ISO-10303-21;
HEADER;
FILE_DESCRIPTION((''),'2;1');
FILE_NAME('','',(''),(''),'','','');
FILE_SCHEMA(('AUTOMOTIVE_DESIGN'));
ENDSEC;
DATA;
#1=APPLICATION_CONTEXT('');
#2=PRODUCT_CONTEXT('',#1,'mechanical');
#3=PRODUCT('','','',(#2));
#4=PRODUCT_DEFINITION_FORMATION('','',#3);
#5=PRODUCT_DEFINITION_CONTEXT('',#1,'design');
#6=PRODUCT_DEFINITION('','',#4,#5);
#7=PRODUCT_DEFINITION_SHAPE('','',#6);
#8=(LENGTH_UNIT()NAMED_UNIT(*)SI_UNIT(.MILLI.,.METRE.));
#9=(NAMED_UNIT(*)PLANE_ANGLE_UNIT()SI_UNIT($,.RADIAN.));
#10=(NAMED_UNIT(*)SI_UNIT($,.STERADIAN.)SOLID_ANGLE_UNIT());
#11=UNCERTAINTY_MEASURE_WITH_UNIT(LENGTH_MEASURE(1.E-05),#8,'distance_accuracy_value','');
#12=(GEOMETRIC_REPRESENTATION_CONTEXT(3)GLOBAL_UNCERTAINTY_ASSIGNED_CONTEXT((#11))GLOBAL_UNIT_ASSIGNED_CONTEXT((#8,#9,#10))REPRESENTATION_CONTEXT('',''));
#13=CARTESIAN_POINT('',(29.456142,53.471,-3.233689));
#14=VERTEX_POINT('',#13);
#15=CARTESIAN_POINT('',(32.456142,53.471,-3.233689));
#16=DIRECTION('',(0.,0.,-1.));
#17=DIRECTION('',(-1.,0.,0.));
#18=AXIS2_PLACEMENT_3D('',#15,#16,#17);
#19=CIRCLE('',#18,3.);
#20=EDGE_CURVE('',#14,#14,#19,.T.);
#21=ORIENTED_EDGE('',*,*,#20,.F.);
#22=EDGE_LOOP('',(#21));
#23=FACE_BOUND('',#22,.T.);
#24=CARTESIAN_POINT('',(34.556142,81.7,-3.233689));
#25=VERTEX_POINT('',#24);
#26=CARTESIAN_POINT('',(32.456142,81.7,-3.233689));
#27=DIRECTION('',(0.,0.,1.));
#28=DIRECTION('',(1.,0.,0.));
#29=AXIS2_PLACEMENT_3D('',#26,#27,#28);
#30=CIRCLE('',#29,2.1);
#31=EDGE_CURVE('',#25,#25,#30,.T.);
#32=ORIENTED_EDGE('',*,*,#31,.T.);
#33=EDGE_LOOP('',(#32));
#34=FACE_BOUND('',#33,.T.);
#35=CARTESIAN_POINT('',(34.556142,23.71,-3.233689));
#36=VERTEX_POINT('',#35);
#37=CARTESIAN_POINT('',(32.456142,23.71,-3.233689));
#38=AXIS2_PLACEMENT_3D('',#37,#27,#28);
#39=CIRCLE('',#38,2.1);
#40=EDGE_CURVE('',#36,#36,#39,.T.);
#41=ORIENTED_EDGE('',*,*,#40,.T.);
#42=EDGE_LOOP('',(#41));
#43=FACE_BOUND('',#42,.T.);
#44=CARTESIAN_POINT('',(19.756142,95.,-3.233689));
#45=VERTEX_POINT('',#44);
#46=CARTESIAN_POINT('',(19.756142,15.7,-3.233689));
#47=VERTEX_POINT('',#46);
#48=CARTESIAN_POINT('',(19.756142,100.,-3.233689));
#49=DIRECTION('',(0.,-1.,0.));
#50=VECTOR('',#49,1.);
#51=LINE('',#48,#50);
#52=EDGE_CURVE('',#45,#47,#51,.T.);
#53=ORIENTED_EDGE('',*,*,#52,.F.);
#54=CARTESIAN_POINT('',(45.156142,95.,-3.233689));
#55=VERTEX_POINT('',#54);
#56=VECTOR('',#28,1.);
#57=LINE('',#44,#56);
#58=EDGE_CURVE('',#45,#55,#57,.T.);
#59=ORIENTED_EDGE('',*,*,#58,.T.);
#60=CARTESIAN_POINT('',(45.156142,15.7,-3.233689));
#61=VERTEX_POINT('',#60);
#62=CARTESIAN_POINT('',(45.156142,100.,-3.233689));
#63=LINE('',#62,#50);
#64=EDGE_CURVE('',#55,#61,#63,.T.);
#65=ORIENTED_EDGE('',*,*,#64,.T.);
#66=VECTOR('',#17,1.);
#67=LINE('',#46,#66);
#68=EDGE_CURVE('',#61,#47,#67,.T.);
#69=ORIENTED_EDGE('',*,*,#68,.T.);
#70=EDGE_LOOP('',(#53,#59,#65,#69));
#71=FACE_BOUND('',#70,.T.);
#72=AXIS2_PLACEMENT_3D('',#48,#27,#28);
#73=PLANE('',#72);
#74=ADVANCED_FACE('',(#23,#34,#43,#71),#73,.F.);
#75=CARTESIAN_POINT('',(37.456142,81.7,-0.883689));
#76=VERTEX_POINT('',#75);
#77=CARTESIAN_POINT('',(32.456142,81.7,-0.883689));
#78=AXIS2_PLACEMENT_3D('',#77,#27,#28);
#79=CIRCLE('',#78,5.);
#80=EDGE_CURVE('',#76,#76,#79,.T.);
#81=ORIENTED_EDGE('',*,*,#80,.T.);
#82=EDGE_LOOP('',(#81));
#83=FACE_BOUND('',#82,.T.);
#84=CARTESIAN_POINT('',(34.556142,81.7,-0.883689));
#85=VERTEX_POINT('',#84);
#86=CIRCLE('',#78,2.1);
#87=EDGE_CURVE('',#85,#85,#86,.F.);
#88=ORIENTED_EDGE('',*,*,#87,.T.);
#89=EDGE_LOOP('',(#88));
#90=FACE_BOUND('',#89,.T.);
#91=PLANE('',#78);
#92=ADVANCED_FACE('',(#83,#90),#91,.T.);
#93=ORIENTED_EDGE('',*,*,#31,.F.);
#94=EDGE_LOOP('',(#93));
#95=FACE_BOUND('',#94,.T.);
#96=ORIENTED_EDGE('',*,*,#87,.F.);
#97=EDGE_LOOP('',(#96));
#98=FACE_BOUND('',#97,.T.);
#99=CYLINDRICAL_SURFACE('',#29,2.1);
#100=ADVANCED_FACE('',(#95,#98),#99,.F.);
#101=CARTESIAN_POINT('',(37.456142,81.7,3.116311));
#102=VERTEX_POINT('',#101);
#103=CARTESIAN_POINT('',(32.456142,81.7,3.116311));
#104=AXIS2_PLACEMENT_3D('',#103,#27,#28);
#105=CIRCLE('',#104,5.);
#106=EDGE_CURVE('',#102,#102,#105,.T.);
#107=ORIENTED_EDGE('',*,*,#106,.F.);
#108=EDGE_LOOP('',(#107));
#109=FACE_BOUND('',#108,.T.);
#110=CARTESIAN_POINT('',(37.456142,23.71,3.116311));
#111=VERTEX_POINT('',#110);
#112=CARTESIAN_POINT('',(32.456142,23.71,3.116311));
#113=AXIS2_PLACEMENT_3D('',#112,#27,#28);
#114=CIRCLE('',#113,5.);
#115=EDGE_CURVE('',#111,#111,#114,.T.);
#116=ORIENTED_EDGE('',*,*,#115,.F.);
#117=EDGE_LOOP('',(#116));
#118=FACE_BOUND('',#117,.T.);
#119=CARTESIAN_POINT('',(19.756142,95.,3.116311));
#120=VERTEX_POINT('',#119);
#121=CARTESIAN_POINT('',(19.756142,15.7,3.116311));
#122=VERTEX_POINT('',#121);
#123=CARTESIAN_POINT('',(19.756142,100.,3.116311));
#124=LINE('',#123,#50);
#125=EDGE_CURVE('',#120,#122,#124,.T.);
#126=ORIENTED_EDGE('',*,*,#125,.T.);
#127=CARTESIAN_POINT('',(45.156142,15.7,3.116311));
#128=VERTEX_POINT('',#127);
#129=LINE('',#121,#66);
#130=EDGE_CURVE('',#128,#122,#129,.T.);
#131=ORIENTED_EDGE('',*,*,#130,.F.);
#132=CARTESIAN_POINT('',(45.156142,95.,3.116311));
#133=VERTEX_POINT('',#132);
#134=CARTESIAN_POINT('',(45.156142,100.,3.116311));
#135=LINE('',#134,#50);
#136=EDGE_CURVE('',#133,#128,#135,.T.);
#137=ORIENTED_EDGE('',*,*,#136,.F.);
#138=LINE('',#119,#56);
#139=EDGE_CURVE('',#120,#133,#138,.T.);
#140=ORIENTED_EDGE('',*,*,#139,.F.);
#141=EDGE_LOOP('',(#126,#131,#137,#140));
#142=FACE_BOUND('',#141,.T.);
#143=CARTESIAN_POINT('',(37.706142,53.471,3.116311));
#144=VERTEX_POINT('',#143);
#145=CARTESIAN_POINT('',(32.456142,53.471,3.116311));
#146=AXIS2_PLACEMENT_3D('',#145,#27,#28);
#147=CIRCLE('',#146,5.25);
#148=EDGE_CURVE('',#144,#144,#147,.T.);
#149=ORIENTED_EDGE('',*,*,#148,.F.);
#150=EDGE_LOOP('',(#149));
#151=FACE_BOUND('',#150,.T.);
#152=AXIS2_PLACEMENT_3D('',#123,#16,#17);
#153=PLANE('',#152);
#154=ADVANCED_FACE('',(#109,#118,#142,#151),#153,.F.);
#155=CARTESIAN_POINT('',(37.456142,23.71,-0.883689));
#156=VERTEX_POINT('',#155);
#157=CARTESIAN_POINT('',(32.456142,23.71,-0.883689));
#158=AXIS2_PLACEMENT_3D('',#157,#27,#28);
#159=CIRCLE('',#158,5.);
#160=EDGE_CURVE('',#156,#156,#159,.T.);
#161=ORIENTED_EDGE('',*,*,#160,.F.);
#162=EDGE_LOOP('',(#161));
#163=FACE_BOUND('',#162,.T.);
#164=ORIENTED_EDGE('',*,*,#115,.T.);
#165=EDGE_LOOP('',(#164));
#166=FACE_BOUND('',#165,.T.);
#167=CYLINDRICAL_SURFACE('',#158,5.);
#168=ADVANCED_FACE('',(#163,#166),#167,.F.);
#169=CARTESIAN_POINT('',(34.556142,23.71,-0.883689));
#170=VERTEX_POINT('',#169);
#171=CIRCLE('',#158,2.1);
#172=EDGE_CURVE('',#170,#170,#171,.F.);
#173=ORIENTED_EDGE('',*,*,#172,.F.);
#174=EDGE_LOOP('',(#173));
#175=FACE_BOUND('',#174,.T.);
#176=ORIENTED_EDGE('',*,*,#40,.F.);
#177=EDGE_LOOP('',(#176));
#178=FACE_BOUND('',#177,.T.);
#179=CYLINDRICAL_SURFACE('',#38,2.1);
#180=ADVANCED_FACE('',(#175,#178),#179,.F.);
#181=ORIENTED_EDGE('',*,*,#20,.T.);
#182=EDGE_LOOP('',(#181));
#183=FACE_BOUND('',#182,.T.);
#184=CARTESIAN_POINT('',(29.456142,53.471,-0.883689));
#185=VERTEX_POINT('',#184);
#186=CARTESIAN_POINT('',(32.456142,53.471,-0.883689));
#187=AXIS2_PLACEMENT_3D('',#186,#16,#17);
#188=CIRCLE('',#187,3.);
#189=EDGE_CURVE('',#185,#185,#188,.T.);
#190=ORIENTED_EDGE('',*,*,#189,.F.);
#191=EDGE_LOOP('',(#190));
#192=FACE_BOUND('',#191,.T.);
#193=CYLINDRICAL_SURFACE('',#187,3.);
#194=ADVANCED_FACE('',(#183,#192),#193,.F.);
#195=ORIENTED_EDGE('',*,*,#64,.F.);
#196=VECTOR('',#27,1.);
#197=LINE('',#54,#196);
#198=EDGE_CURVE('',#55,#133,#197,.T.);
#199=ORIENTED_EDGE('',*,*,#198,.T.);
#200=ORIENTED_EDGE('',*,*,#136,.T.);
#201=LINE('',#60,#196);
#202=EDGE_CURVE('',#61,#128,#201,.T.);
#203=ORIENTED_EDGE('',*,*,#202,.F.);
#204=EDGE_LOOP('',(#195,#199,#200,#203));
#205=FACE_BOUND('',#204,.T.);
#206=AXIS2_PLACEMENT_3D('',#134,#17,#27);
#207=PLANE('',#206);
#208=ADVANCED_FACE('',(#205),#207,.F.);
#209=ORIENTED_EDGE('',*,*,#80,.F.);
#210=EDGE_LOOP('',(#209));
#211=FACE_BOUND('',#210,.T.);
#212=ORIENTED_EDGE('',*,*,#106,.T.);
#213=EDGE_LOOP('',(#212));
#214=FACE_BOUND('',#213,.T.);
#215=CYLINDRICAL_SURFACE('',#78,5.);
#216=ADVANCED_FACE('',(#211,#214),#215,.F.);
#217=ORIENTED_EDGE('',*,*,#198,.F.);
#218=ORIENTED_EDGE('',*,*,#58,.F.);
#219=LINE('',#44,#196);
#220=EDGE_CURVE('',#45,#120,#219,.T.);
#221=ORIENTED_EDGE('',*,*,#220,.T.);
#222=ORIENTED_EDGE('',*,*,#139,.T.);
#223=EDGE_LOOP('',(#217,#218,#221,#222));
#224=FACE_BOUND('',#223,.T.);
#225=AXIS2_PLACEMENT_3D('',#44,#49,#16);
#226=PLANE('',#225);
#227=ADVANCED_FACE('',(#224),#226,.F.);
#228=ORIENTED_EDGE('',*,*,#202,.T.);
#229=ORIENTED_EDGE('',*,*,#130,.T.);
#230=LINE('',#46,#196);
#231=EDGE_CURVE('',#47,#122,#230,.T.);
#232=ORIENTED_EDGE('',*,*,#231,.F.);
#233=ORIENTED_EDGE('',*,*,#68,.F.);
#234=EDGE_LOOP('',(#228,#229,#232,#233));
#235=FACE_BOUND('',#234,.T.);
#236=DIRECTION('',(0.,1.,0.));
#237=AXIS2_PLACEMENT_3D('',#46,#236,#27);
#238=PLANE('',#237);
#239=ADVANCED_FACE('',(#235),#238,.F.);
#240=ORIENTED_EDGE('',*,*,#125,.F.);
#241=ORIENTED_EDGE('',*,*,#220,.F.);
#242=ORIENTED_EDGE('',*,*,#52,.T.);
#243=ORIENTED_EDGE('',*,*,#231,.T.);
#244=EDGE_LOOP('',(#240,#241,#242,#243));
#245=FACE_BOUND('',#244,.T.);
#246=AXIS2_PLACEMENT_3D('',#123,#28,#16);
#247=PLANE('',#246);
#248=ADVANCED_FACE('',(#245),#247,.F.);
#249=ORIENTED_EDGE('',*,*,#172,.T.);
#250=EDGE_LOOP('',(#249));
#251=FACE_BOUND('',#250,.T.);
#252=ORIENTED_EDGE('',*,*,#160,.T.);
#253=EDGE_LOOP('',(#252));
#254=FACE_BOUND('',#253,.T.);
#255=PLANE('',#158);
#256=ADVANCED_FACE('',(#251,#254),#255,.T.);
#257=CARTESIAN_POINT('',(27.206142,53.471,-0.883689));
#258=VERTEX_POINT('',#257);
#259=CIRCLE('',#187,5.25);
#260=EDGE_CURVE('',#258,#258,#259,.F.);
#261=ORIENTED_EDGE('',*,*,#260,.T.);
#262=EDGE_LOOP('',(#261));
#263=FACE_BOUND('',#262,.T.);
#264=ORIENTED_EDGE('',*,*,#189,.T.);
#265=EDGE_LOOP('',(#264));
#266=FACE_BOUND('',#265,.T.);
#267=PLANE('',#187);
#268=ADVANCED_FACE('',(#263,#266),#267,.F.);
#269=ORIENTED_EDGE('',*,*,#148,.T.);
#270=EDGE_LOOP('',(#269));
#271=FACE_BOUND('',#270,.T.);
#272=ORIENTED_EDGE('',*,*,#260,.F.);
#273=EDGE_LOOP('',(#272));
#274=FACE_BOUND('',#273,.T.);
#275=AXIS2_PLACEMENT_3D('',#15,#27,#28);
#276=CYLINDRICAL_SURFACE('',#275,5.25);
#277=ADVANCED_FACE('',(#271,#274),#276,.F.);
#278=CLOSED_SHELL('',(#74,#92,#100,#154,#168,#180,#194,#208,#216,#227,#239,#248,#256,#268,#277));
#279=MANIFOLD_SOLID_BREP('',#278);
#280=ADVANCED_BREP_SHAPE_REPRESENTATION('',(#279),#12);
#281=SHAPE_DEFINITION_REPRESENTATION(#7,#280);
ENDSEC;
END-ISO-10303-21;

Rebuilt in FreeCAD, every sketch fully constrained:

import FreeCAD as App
import Part
import Sketcher
Q = App.Units.Quantity


def add_polygon(sketch, points):
    """Adds a closed chain of lines whose ends are joined by coincident constraints."""
    first, n = sketch.GeometryCount, len(points)
    for a, b in zip(points, points[1:] + points[:1]):
        sketch.addGeometry(Part.LineSegment(App.Vector(*a, 0), App.Vector(*b, 0)), False)
    for i in range(n):
        sketch.addConstraint(Sketcher.Constraint("Coincident", first + i, 2, first + (i + 1) % n, 1))

doc = App.newDocument("Part")
params = doc.addObject("Spreadsheet::Sheet", "Params")
for row, (alias, value) in enumerate([
    ("sketch1_width", "25.4 mm"),
    ("sketch1_height", "6.35 mm"),
    ("pad1_length", "100 mm"),
    ("sketch2_diameter", "4.2 mm"),
    ("sketch3_diameter", "10 mm"),
    ("pocket2_length", "4 mm"),
    ("sketch4_diameter", "10 mm"),
    ("pocket3_length", "4 mm"),
    ("sketch5_height", "5 mm"),
    ("sketch5_height2", "12 mm"),
    ("sketch5_width", "25.4 mm"),
    ("sketch6_diameter", "10.5 mm"),
    ("sketch7_width", "25.4 mm"),
    ("sketch7_height", "3.7 mm"),
    ("sketch8_diameter", "6 mm"),
    ("sketch8_diameter2", "10.5 mm"),
    ("pad2_length", "2.35 mm"),
], start=1):
    params.set(f"A{row}", alias)
    params.set(f"B{row}", "=" + value)
    params.setAlias(f"B{row}", alias)

body = doc.addObject("PartDesign::Body", "Body")

# Sketch on XZ plane
sketch1 = body.newObject("Sketcher::SketchObject", "Sketch")
sketch1.AttachmentSupport = (doc.getObject("XZ_Plane"), [""])
sketch1.MapMode = "FlatFace"
add_polygon(sketch1, [(20, -3), (20, 3), (45, 3), (45, -3)])  # lines 0-3
sketch1.addConstraint(Sketcher.Constraint("Vertical", 0))
sketch1.addConstraint(Sketcher.Constraint("Horizontal", 1))
sketch1.addConstraint(Sketcher.Constraint("Vertical", 2))
sketch1.addConstraint(Sketcher.Constraint("Horizontal", 3))
sketch1.addConstraint(Sketcher.Constraint("DistanceX", 1, 1, 1, 2, Q("25.4 mm")))
sketch1.addConstraint(Sketcher.Constraint("DistanceY", 0, 1, 0, 2, Q("6.35 mm")))
sketch1.addConstraint(Sketcher.Constraint("DistanceX", -1, 1, 0, 2, Q("19.756142 mm")))
sketch1.addConstraint(Sketcher.Constraint("DistanceY", -1, 1, 0, 2, Q("3.116311 mm")))
sketch1.setExpression("Constraints[8]", "Params.sketch1_width")
sketch1.setExpression("Constraints[9]", "Params.sketch1_height")
pad1 = body.newObject("PartDesign::Pad", "Pad")
pad1.Profile = sketch1
pad1.setExpression("Length", "Params.pad1_length")
pad1.Reversed = True

# Sketch on XY plane
sketch2 = body.newObject("Sketcher::SketchObject", "Sketch001")
sketch2.AttachmentSupport = (doc.getObject("XY_Plane"), [""])
sketch2.MapMode = "FlatFace"
sketch2.AttachmentOffset = App.Placement(App.Vector(0, 0, 3.116311), App.Rotation())
sketch2.addGeometry(Part.Circle(App.Vector(32.5, 81.7, 0), App.Vector(0, 0, 1), 2.1), False)
sketch2.addGeometry(Part.Circle(App.Vector(32.5, 23.7, 0), App.Vector(0, 0, 1), 2.1), False)
sketch2.addConstraint(Sketcher.Constraint("Equal", 0, 1))
sketch2.addConstraint(Sketcher.Constraint("Vertical", 0, 3, 1, 3))
sketch2.addConstraint(Sketcher.Constraint("Diameter", 0, Q("4.2 mm")))
sketch2.addConstraint(Sketcher.Constraint("DistanceY", -1, 1, 0, 3, Q("81.7 mm")))
sketch2.addConstraint(Sketcher.Constraint("DistanceY", -1, 1, 1, 3, Q("23.71 mm")))
sketch2.addConstraint(Sketcher.Constraint("DistanceX", -1, 1, 0, 3, Q("32.456142 mm")))
sketch2.setExpression("Constraints[2]", "Params.sketch2_diameter")
pocket1 = body.newObject("PartDesign::Pocket", "Pocket")
pocket1.Profile = sketch2
pocket1.Type = "ThroughAll"

# Sketch on XY plane
sketch3 = body.newObject("Sketcher::SketchObject", "Sketch002")
sketch3.AttachmentSupport = (doc.getObject("XY_Plane"), [""])
sketch3.MapMode = "FlatFace"
sketch3.AttachmentOffset = App.Placement(App.Vector(0, 0, 3.116311), App.Rotation())
sketch3.addGeometry(Part.Circle(App.Vector(32, 82, 0), App.Vector(0, 0, 1), 5), False)
sketch3.addConstraint(Sketcher.Constraint("Diameter", 0, Q("10 mm")))
sketch3.addConstraint(Sketcher.Constraint("DistanceY", -1, 1, 0, 3, Q("81.7 mm")))
sketch3.addConstraint(Sketcher.Constraint("DistanceX", -1, 1, 0, 3, Q("32.456142 mm")))
sketch3.setExpression("Constraints[0]", "Params.sketch3_diameter")
pocket2 = body.newObject("PartDesign::Pocket", "Pocket001")
pocket2.Profile = sketch3
pocket2.setExpression("Length", "Params.pocket2_length")

# Sketch on XY plane
sketch4 = body.newObject("Sketcher::SketchObject", "Sketch003")
sketch4.AttachmentSupport = (doc.getObject("XY_Plane"), [""])
sketch4.MapMode = "FlatFace"
sketch4.AttachmentOffset = App.Placement(App.Vector(0, 0, 3.116311), App.Rotation())
sketch4.addGeometry(Part.Circle(App.Vector(32, 24, 0), App.Vector(0, 0, 1), 5), False)
sketch4.addConstraint(Sketcher.Constraint("Diameter", 0, Q("10 mm")))
sketch4.addConstraint(Sketcher.Constraint("DistanceY", -1, 1, 0, 3, Q("23.71 mm")))
sketch4.addConstraint(Sketcher.Constraint("DistanceX", -1, 1, 0, 3, Q("32.456142 mm")))
sketch4.setExpression("Constraints[0]", "Params.sketch4_diameter")
pocket3 = body.newObject("PartDesign::Pocket", "Pocket002")
pocket3.Profile = sketch4
pocket3.setExpression("Length", "Params.pocket3_length")

# Sketch on XY plane
sketch5 = body.newObject("Sketcher::SketchObject", "Sketch004")
sketch5.AttachmentSupport = (doc.getObject("XY_Plane"), [""])
sketch5.MapMode = "FlatFace"
sketch5.AttachmentOffset = App.Placement(App.Vector(0, 0, 3.116311), App.Rotation())
add_polygon(sketch5, [(20, 100), (20, 95), (45, 95), (45, 100)])  # lines 0-3
add_polygon(sketch5, [(20, 12), (20, 0), (45, 0), (45, 12)])  # lines 4-7
sketch5.addConstraint(Sketcher.Constraint("Vertical", 0))
sketch5.addConstraint(Sketcher.Constraint("Horizontal", 1))
sketch5.addConstraint(Sketcher.Constraint("Vertical", 2))
sketch5.addConstraint(Sketcher.Constraint("Horizontal", 3))
sketch5.addConstraint(Sketcher.Constraint("Vertical", 4))
sketch5.addConstraint(Sketcher.Constraint("Horizontal", 5))
sketch5.addConstraint(Sketcher.Constraint("Vertical", 6))
sketch5.addConstraint(Sketcher.Constraint("Horizontal", 7))
sketch5.addConstraint(Sketcher.Constraint("PointOnObject", 4, 2, -1))
sketch5.addConstraint(Sketcher.Constraint("Vertical", 3, 2, 4, 2))
sketch5.addConstraint(Sketcher.Constraint("Vertical", 2, 2, 5, 2))
sketch5.addConstraint(Sketcher.Constraint("DistanceY", 0, 2, 0, 1, Q("5 mm")))
sketch5.addConstraint(Sketcher.Constraint("DistanceY", 4, 2, 4, 1, Q("12 mm")))
sketch5.addConstraint(Sketcher.Constraint("DistanceX", 1, 1, 1, 2, Q("25.4 mm")))
sketch5.addConstraint(Sketcher.Constraint("DistanceY", -1, 1, 0, 2, Q("95 mm")))
sketch5.addConstraint(Sketcher.Constraint("DistanceX", -1, 1, 0, 2, Q("19.756142 mm")))
sketch5.setExpression("Constraints[19]", "Params.sketch5_height")
sketch5.setExpression("Constraints[20]", "Params.sketch5_height2")
sketch5.setExpression("Constraints[21]", "Params.sketch5_width")
pocket4 = body.newObject("PartDesign::Pocket", "Pocket003")
pocket4.Profile = sketch5
pocket4.Type = "ThroughAll"

# Sketch on XY plane
sketch6 = body.newObject("Sketcher::SketchObject", "Sketch005")
sketch6.AttachmentSupport = (doc.getObject("XY_Plane"), [""])
sketch6.MapMode = "FlatFace"
sketch6.AttachmentOffset = App.Placement(App.Vector(0, 0, 3.116311), App.Rotation())
sketch6.addGeometry(Part.Circle(App.Vector(32, 53, 0), App.Vector(0, 0, 1), 5), False)
sketch6.addConstraint(Sketcher.Constraint("Diameter", 0, Q("10.5 mm")))
sketch6.addConstraint(Sketcher.Constraint("DistanceY", -1, 1, 0, 3, Q("53.471 mm")))
sketch6.addConstraint(Sketcher.Constraint("DistanceX", -1, 1, 0, 3, Q("32.456142 mm")))
sketch6.setExpression("Constraints[0]", "Params.sketch6_diameter")
pocket5 = body.newObject("PartDesign::Pocket", "Pocket004")
pocket5.Profile = sketch6
pocket5.Type = "ThroughAll"

# Sketch on XY plane
sketch7 = body.newObject("Sketcher::SketchObject", "Sketch006")
sketch7.AttachmentSupport = (doc.getObject("XY_Plane"), [""])
sketch7.MapMode = "FlatFace"
sketch7.AttachmentOffset = App.Placement(App.Vector(0, 0, 3.116311), App.Rotation())
add_polygon(sketch7, [(19.8, 15.7), (19.8, 12), (45.2, 12), (45.2, 15.7)])  # lines 0-3
sketch7.addConstraint(Sketcher.Constraint("Vertical", 0))
sketch7.addConstraint(Sketcher.Constraint("Horizontal", 1))
sketch7.addConstraint(Sketcher.Constraint("Vertical", 2))
sketch7.addConstraint(Sketcher.Constraint("Horizontal", 3))
sketch7.addConstraint(Sketcher.Constraint("DistanceX", 1, 1, 1, 2, Q("25.4 mm")))
sketch7.addConstraint(Sketcher.Constraint("DistanceY", 0, 2, 0, 1, Q("3.7 mm")))
sketch7.addConstraint(Sketcher.Constraint("DistanceY", -1, 1, 0, 2, Q("12 mm")))
sketch7.addConstraint(Sketcher.Constraint("DistanceX", -1, 1, 0, 2, Q("19.756142 mm")))
sketch7.setExpression("Constraints[8]", "Params.sketch7_width")
sketch7.setExpression("Constraints[9]", "Params.sketch7_height")
pocket6 = body.newObject("PartDesign::Pocket", "Pocket005")
pocket6.Profile = sketch7
pocket6.Type = "ThroughAll"

# Sketch on XY plane
sketch8 = body.newObject("Sketcher::SketchObject", "Sketch007")
sketch8.AttachmentSupport = (doc.getObject("XY_Plane"), [""])
sketch8.MapMode = "FlatFace"
sketch8.AttachmentOffset = App.Placement(App.Vector(0, 0, -0.883689), App.Rotation())
sketch8.addGeometry(Part.Circle(App.Vector(32.5, 53.5, 0), App.Vector(0, 0, 1), 5.2), False)
sketch8.addGeometry(Part.Circle(App.Vector(32.5, 53.5, 0), App.Vector(0, 0, 1), 3), False)
sketch8.addConstraint(Sketcher.Constraint("Coincident", 1, 3, 0, 3))
sketch8.addConstraint(Sketcher.Constraint("Diameter", 1, Q("6 mm")))
sketch8.addConstraint(Sketcher.Constraint("Diameter", 0, Q("10.5 mm")))
sketch8.addConstraint(Sketcher.Constraint("DistanceY", -1, 1, 0, 3, Q("53.471 mm")))
sketch8.addConstraint(Sketcher.Constraint("DistanceX", -1, 1, 0, 3, Q("32.456142 mm")))
sketch8.setExpression("Constraints[1]", "Params.sketch8_diameter")
sketch8.setExpression("Constraints[2]", "Params.sketch8_diameter2")
pad2 = body.newObject("PartDesign::Pad", "Pad001")
pad2.Profile = sketch8
pad2.setExpression("Length", "Params.pad2_length")
pad2.Reversed = True

doc.recompute()
